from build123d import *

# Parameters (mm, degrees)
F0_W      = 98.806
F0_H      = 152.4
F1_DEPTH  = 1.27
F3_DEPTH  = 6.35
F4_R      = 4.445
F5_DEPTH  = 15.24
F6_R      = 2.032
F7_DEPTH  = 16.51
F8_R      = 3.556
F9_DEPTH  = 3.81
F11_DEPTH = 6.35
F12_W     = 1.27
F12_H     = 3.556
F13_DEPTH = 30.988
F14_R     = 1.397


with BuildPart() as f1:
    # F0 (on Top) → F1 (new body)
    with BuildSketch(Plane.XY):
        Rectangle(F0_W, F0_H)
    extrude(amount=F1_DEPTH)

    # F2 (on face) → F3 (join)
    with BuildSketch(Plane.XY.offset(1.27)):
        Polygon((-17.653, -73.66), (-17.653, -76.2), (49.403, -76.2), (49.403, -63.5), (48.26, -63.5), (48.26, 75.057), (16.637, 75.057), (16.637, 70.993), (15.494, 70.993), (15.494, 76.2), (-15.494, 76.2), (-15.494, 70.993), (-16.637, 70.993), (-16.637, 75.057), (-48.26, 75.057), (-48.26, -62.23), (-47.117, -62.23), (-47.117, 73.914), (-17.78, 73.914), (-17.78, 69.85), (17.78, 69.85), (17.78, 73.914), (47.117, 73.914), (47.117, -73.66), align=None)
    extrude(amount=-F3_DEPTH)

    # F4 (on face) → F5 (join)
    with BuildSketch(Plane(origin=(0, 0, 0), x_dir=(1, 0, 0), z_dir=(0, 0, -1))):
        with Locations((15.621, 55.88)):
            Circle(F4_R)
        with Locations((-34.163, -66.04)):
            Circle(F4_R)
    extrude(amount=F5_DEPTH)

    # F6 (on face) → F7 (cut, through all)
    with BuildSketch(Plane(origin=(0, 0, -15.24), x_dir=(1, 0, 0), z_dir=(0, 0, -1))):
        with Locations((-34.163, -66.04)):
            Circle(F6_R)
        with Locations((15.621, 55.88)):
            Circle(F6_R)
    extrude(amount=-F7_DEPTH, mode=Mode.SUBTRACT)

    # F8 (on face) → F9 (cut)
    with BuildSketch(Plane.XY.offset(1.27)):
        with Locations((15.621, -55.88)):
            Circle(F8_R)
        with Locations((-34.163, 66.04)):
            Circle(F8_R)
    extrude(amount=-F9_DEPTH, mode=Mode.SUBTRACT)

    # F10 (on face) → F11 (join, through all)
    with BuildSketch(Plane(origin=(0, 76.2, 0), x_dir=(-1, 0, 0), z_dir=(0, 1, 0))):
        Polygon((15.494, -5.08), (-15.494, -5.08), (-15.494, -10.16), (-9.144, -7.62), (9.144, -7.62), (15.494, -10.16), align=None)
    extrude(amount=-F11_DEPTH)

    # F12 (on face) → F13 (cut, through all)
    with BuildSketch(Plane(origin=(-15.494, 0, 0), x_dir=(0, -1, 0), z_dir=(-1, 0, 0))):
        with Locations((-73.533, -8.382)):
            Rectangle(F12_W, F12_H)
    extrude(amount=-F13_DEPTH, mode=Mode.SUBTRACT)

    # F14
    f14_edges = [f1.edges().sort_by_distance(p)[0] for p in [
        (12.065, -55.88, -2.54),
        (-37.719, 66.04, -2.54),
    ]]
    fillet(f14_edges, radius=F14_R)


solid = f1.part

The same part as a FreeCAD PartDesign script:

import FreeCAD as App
import Part
import Sketcher

V = App.Vector
Q = App.Units.Quantity


def edges_at(feature, points):
    """Names of the edges that pass closest to the given points."""
    edges = feature.Shape.Edges
    near = lambda p: min(range(len(edges)), key=lambda i: edges[i].distToShape(Part.Vertex(*p))[0])
    return sorted({f"Edge{near(p) + 1}" for p in points})

doc = App.newDocument("Part")
body = doc.addObject("PartDesign::Body", "Body")

# Sketch on XY plane
sketch1 = doc.addObject("Sketcher::SketchObject", "Sketch")
body.addObject(sketch1)
sketch1.AttachmentSupport = (doc.XY_Plane, [""])
sketch1.MapMode = "FlatFace"
sketch1.addGeometry([
    Part.LineSegment(V(-49, 76, 0), V(-49, -76, 0)),
    Part.LineSegment(V(-49, -76, 0), V(49, -76, 0)),
    Part.LineSegment(V(49, -76, 0), V(49, 76, 0)),
    Part.LineSegment(V(49, 76, 0), V(-49, 76, 0)),
], False)
sketch1.addConstraint([
    Sketcher.Constraint("Coincident", 0, 2, 1, 1),
    Sketcher.Constraint("Coincident", 1, 2, 2, 1),
    Sketcher.Constraint("Coincident", 2, 2, 3, 1),
    Sketcher.Constraint("Coincident", 3, 2, 0, 1),
    Sketcher.Constraint("Vertical", 0),
    Sketcher.Constraint("Horizontal", 1),
    Sketcher.Constraint("Vertical", 2),
    Sketcher.Constraint("Horizontal", 3),
    Sketcher.Constraint("Symmetric", 0, 2, 2, 2, -1, 1),
    Sketcher.Constraint("DistanceY", 0, 2, 0, 1, Q("6 in")),
    Sketcher.Constraint("DistanceX", 1, 1, 1, 2, Q("3.89 in")),
])
pad1 = doc.addObject("PartDesign::Pad", "Pad")
body.addObject(pad1)
pad1.Profile = sketch1
pad1.Length = Q("0.05 in")

# Sketch on XY plane
sketch2 = doc.addObject("Sketcher::SketchObject", "Sketch001")
body.addObject(sketch2)
sketch2.AttachmentSupport = (doc.XY_Plane, [""])
sketch2.MapMode = "FlatFace"
sketch2.AttachmentOffset = App.Placement(V(0, 0, 0.05 * 25.4), App.Rotation())
sketch2.addGeometry([
    Part.LineSegment(V(-17.7, -73.7, 0), V(-17.7, -76.2, 0)),  # 0
    Part.LineSegment(V(-17.7, -76.2, 0), V(49.4, -76.2, 0)),  # 1
    Part.LineSegment(V(49.4, -76.2, 0), V(49.4, -63.5, 0)),  # 2
    Part.LineSegment(V(49.4, -63.5, 0), V(48.3, -63.5, 0)),  # 3
    Part.LineSegment(V(48.3, -63.5, 0), V(48.3, 75.1, 0)),  # 4
    Part.LineSegment(V(48.3, 75.1, 0), V(16.6, 75.1, 0)),  # 5
    Part.LineSegment(V(16.6, 75.1, 0), V(16.6, 71, 0)),  # 6
    Part.LineSegment(V(16.6, 71, 0), V(15.5, 71, 0)),  # 7
    Part.LineSegment(V(15.5, 71, 0), V(15.5, 76.2, 0)),  # 8
    Part.LineSegment(V(15.5, 76.2, 0), V(-15.5, 76.2, 0)),  # 9
    Part.LineSegment(V(-15.5, 76.2, 0), V(-15.5, 71, 0)),  # 10
    Part.LineSegment(V(-15.5, 71, 0), V(-16.6, 71, 0)),  # 11
    Part.LineSegment(V(-16.6, 71, 0), V(-16.6, 75.1, 0)),  # 12
    Part.LineSegment(V(-16.6, 75.1, 0), V(-48.3, 75.1, 0)),  # 13
    Part.LineSegment(V(-48.3, 75.1, 0), V(-48.3, -62.2, 0)),  # 14
    Part.LineSegment(V(-48.3, -62.2, 0), V(-47.1, -62.2, 0)),  # 15
    Part.LineSegment(V(-47.1, -62.2, 0), V(-47.1, 73.9, 0)),  # 16
    Part.LineSegment(V(-47.1, 73.9, 0), V(-17.8, 73.9, 0)),  # 17
    Part.LineSegment(V(-17.8, 73.9, 0), V(-17.8, 69.8, 0)),  # 18
    Part.LineSegment(V(-17.8, 69.8, 0), V(17.8, 69.8, 0)),  # 19
    Part.LineSegment(V(17.8, 69.8, 0), V(17.8, 73.9, 0)),  # 20
    Part.LineSegment(V(17.8, 73.9, 0), V(47.1, 73.9, 0)),  # 21
    Part.LineSegment(V(47.1, 73.9, 0), V(47.1, -73.7, 0)),  # 22
    Part.LineSegment(V(47.1, -73.7, 0), V(-17.7, -73.7, 0)),  # 23
], False)
sketch2.addConstraint([
    Sketcher.Constraint("Coincident", 0, 2, 1, 1),
    Sketcher.Constraint("Coincident", 1, 2, 2, 1),
    Sketcher.Constraint("Coincident", 2, 2, 3, 1),
    Sketcher.Constraint("Coincident", 3, 2, 4, 1),
    Sketcher.Constraint("Coincident", 4, 2, 5, 1),
    Sketcher.Constraint("Coincident", 5, 2, 6, 1),
    Sketcher.Constraint("Coincident", 6, 2, 7, 1),
    Sketcher.Constraint("Coincident", 7, 2, 8, 1),
    Sketcher.Constraint("Coincident", 8, 2, 9, 1),
    Sketcher.Constraint("Coincident", 9, 2, 10, 1),
    Sketcher.Constraint("Coincident", 10, 2, 11, 1),
    Sketcher.Constraint("Coincident", 11, 2, 12, 1),
    Sketcher.Constraint("Coincident", 12, 2, 13, 1),
    Sketcher.Constraint("Coincident", 13, 2, 14, 1),
    Sketcher.Constraint("Coincident", 14, 2, 15, 1),
    Sketcher.Constraint("Coincident", 15, 2, 16, 1),
    Sketcher.Constraint("Coincident", 16, 2, 17, 1),
    Sketcher.Constraint("Coincident", 17, 2, 18, 1),
    Sketcher.Constraint("Coincident", 18, 2, 19, 1),
    Sketcher.Constraint("Coincident", 19, 2, 20, 1),
    Sketcher.Constraint("Coincident", 20, 2, 21, 1),
    Sketcher.Constraint("Coincident", 21, 2, 22, 1),
    Sketcher.Constraint("Coincident", 22, 2, 23, 1),
    Sketcher.Constraint("Coincident", 23, 2, 0, 1),
    Sketcher.Constraint("Vertical", 0),
    Sketcher.Constraint("Horizontal", 1),
    Sketcher.Constraint("Vertical", 2),
    Sketcher.Constraint("Horizontal", 3),
    Sketcher.Constraint("Vertical", 4),
    Sketcher.Constraint("Horizontal", 5),
    Sketcher.Constraint("Vertical", 6),
    Sketcher.Constraint("Horizontal", 7),
    Sketcher.Constraint("Vertical", 8),
    Sketcher.Constraint("Horizontal", 9),
    Sketcher.Constraint("Vertical", 10),
    Sketcher.Constraint("Horizontal", 11),
    Sketcher.Constraint("Vertical", 12),
    Sketcher.Constraint("Horizontal", 13),
    Sketcher.Constraint("Vertical", 14),
    Sketcher.Constraint("Horizontal", 15),
    Sketcher.Constraint("Vertical", 16),
    Sketcher.Constraint("Horizontal", 17),
    Sketcher.Constraint("Vertical", 18),
    Sketcher.Constraint("Horizontal", 19),
    Sketcher.Constraint("Vertical", 20),
    Sketcher.Constraint("Horizontal", 21),
    Sketcher.Constraint("Vertical", 22),
    Sketcher.Constraint("Horizontal", 23),
    Sketcher.Constraint("Symmetric", 7, 2, 10, 2, -2),
    Sketcher.Constraint("Symmetric", 5, 2, 12, 2, -2),
    Sketcher.Constraint("Symmetric", 17, 2, 20, 2, -2),
    Sketcher.Constraint("Equal", 3, 7),
    Sketcher.Constraint("Equal", 5, 13),
    Sketcher.Constraint("Equal", 11, 15),
    Sketcher.Constraint("Equal", 17, 21),
    Sketcher.Constraint("Equal", 12, 18),
    Sketcher.Constraint("DistanceX", 19, 1, 19, 2, Q("1.4 in")),
    Sketcher.Constraint("DistanceY", 0, 2, 0, 1, Q("0.1 in")),
    Sketcher.Constraint("DistanceY", 2, 1, 2, 2, Q("0.5 in")),
    Sketcher.Constraint("DistanceY", 0, 2, -1, 1, Q("3 in")),
    Sketcher.Constraint("DistanceY", -1, 1, 8, 2, Q("3 in")),
    Sketcher.Constraint("DistanceX", 1, 1, 1, 2, Q("2.64 in")),
    Sketcher.Constraint("DistanceX", 9, 2, 9, 1, Q("1.22 in")),
    Sketcher.Constraint("DistanceX", 23, 2, 23, 1, Q("2.55 in")),
    Sketcher.Constraint("DistanceY", 6, 2, 6, 1, Q("0.16 in")),
    Sketcher.Constraint("DistanceY", 16, 1, 16, 2, Q("5.36 in")),
    Sketcher.Constraint("DistanceY", 22, 2, 22, 1, Q("5.81 in")),
    Sketcher.Constraint("DistanceX", -1, 1, 3, 2, Q("1.9 in")),
    Sketcher.Constraint("DistanceY", 4, 1, 4, 2, Q("5.455 in")),
])
pad2 = doc.addObject("PartDesign::Pad", "Pad001")
body.addObject(pad2)
pad2.Profile = sketch2
pad2.Length = Q("0.25 in")
pad2.Reversed = True

# Sketch on XY plane
sketch3 = doc.addObject("Sketcher::SketchObject", "Sketch002")
body.addObject(sketch3)
sketch3.AttachmentSupport = (doc.XY_Plane, [""])
sketch3.MapMode = "FlatFace"
sketch3.addGeometry([
    Part.Circle(V(15.6, -55.9, 0), V(0, 0, 1), 4.4),
    Part.Circle(V(-34.2, 66, 0), V(0, 0, 1), 4.4),
], False)
sketch3.addConstraint([
    Sketcher.Constraint("Equal", 0, 1),
    Sketcher.Constraint("Diameter", 0, Q("0.35 in")),
    Sketcher.Constraint("DistanceY", 0, 3, -1, 1, Q("2.2 in")),
    Sketcher.Constraint("DistanceY", -1, 1, 1, 3, Q("2.6 in")),
    Sketcher.Constraint("DistanceX", 1, 3, 0, 3, Q("1.96 in")),
    Sketcher.Constraint("DistanceX", -1, 1, 0, 3, Q("0.615 in")),
])
pad3 = doc.addObject("PartDesign::Pad", "Pad002")
body.addObject(pad3)
pad3.Profile = sketch3
pad3.Length = Q("0.6 in")
pad3.Reversed = True

# Sketch on XY plane
sketch4 = doc.addObject("Sketcher::SketchObject", "Sketch003")
body.addObject(sketch4)
sketch4.AttachmentSupport = (doc.XY_Plane, [""])
sketch4.MapMode = "FlatFace"
sketch4.AttachmentOffset = App.Placement(V(0, 0, -0.6 * 25.4), App.Rotation())
sketch4.addGeometry([
    Part.Circle(V(-34.2, 66, 0), V(0, 0, 1), 2),
    Part.Circle(V(15.6, -55.9, 0), V(0, 0, 1), 2),
], False)
sketch4.addConstraint([
    Sketcher.Constraint("Equal", 0, 1),
    Sketcher.Constraint("Diameter", 0, Q("0.16 in")),
    Sketcher.Constraint("DistanceY", -1, 1, 0, 3, Q("2.6 in")),
    Sketcher.Constraint("DistanceY", 1, 3, -1, 1, Q("2.2 in")),
    Sketcher.Constraint("DistanceX", 0, 3, 1, 3, Q("1.96 in")),
    Sketcher.Constraint("DistanceX", 0, 3, -1, 1, Q("1.345 in")),
])
pocket1 = doc.addObject("PartDesign::Pocket", "Pocket")
body.addObject(pocket1)
pocket1.Profile = sketch4
pocket1.Type = "ThroughAll"
pocket1.Reversed = True

# Sketch on XY plane
sketch5 = doc.addObject("Sketcher::SketchObject", "Sketch004")
body.addObject(sketch5)
sketch5.AttachmentSupport = (doc.XY_Plane, [""])
sketch5.MapMode = "FlatFace"
sketch5.AttachmentOffset = App.Placement(V(0, 0, 0.05 * 25.4), App.Rotation())
sketch5.addGeometry([
    Part.Circle(V(15.6, -55.9, 0), V(0, 0, 1), 3.6),
    Part.Circle(V(-34.2, 66, 0), V(0, 0, 1), 3.6),
], False)
sketch5.addConstraint([
    Sketcher.Constraint("Equal", 0, 1),
    Sketcher.Constraint("Diameter", 0, Q("0.28 in")),
    Sketcher.Constraint("DistanceY", 0, 3, -1, 1, Q("2.2 in")),
    Sketcher.Constraint("DistanceY", -1, 1, 1, 3, Q("2.6 in")),
    Sketcher.Constraint("DistanceX", 1, 3, 0, 3, Q("1.96 in")),
    Sketcher.Constraint("DistanceX", -1, 1, 0, 3, Q("0.615 in")),
])
pocket2 = doc.addObject("PartDesign::Pocket", "Pocket001")
body.addObject(pocket2)
pocket2.Profile = sketch5
pocket2.Length = Q("0.15 in")

# Sketch on XZ plane
sketch6 = doc.addObject("Sketcher::SketchObject", "Sketch005")
body.addObject(sketch6)
sketch6.AttachmentSupport = (doc.XZ_Plane, [""])
sketch6.MapMode = "FlatFace"
sketch6.AttachmentOffset = App.Placement(V(0, 0, -3 * 25.4), App.Rotation())
sketch6.addGeometry([
    Part.LineSegment(V(-15, -5, 0), V(15, -5, 0)),  # 0
    Part.LineSegment(V(15, -5, 0), V(15, -10, 0)),  # 1
    Part.LineSegment(V(15, -10, 0), V(9, -8, 0)),  # 2
    Part.LineSegment(V(9, -8, 0), V(-9, -8, 0)),  # 3
    Part.LineSegment(V(-9, -8, 0), V(-15, -10, 0)),  # 4
    Part.LineSegment(V(-15, -10, 0), V(-15, -5, 0)),  # 5
], False)
sketch6.addConstraint([
    Sketcher.Constraint("Coincident", 0, 2, 1, 1),
    Sketcher.Constraint("Coincident", 1, 2, 2, 1),
    Sketcher.Constraint("Coincident", 2, 2, 3, 1),
    Sketcher.Constraint("Coincident", 3, 2, 4, 1),
    Sketcher.Constraint("Coincident", 4, 2, 5, 1),
    Sketcher.Constraint("Coincident", 5, 2, 0, 1),
    Sketcher.Constraint("Horizontal", 0),
    Sketcher.Constraint("Vertical", 1),
    Sketcher.Constraint("Horizontal", 3),
    Sketcher.Constraint("Vertical", 5),
    Sketcher.Constraint("Symmetric", 1, 2, 4, 2, -2),
    Sketcher.Constraint("Equal", 2, 4),
    Sketcher.Constraint("DistanceY", 1, 2, 1, 1, Q("0.2 in")),
    Sketcher.Constraint("DistanceX", 0, 1, 0, 2, Q("1.22 in")),
    Sketcher.Constraint("DistanceX", 3, 2, 3, 1, Q("0.72 in")),
    Sketcher.Constraint("DistanceY", 0, 2, -1, 1, Q("0.2 in")),
    Sketcher.Constraint("DistanceY", 2, 2, -1, 1, Q("0.3 in")),
])
pad4 = doc.addObject("PartDesign::Pad", "Pad003")
body.addObject(pad4)
pad4.Profile = sketch6
pad4.Length = Q("0.25 in")

# Sketch on YZ plane
sketch7 = doc.addObject("Sketcher::SketchObject", "Sketch006")
body.addObject(sketch7)
sketch7.AttachmentSupport = (doc.YZ_Plane, [""])
sketch7.MapMode = "FlatFace"
sketch7.AttachmentOffset = App.Placement(V(0, 0, -0.61 * 25.4), App.Rotation())
sketch7.addGeometry([
    Part.LineSegment(V(74.2, -6.6, 0), V(74.2, -10.2, 0)),
    Part.LineSegment(V(74.2, -10.2, 0), V(72.9, -10.2, 0)),
    Part.LineSegment(V(72.9, -10.2, 0), V(72.9, -6.6, 0)),
    Part.LineSegment(V(72.9, -6.6, 0), V(74.2, -6.6, 0)),
], False)
sketch7.addConstraint([
    Sketcher.Constraint("Coincident", 0, 2, 1, 1),
    Sketcher.Constraint("Coincident", 1, 2, 2, 1),
    Sketcher.Constraint("Coincident", 2, 2, 3, 1),
    Sketcher.Constraint("Coincident", 3, 2, 0, 1),
    Sketcher.Constraint("Vertical", 0),
    Sketcher.Constraint("Horizontal", 1),
    Sketcher.Constraint("Vertical", 2),
    Sketcher.Constraint("Horizontal", 3),
    Sketcher.Constraint("DistanceX", 1, 2, 1, 1, Q("0.05 in")),
    Sketcher.Constraint("DistanceY", 0, 2, 0, 1, Q("0.14 in")),
    Sketcher.Constraint("DistanceY", 0, 2, -1, 1, Q("0.4 in")),
    Sketcher.Constraint("DistanceX", -1, 1, 0, 2, Q("2.92 in")),
])
pocket3 = doc.addObject("PartDesign::Pocket", "Pocket002")
body.addObject(pocket3)
pocket3.Profile = sketch7
pocket3.Type = "ThroughAll"
pocket3.Reversed = True
doc.recompute()

fillet = doc.addObject("PartDesign::Fillet", "Fillet")
body.addObject(fillet)
fillet.Base = (pocket3, edges_at(pocket3, [(12.065, -55.88, -2.54), (-37.719, 66.04, -2.54)]))
fillet.Radius = Q("0.055 in")

doc.recompute()
